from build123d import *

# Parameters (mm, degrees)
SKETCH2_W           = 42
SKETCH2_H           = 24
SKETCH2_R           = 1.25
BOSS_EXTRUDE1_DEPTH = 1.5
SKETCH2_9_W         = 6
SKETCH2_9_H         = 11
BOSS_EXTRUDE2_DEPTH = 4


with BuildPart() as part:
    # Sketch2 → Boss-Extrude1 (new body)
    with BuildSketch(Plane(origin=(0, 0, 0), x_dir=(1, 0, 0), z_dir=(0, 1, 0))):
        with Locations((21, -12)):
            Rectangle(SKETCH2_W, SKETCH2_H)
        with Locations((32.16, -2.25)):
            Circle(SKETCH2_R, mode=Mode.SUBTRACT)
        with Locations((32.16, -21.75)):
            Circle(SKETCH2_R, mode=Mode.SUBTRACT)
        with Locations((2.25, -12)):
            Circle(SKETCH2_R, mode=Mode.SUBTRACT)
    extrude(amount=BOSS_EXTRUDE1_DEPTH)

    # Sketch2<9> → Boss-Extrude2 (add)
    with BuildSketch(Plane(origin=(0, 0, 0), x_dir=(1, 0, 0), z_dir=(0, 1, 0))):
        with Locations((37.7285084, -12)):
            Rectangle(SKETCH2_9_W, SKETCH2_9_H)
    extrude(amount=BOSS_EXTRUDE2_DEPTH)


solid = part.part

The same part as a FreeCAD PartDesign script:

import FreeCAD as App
import Part
import Sketcher

doc = App.newDocument("Part")
body = doc.addObject("PartDesign::Body", "Body")

# Sketch on XZ plane
sketch1 = body.newObject("Sketcher::SketchObject", "Sketch")
sketch1.AttachmentSupport = (doc.getObject("XZ_Plane"), [""])
sketch1.MapMode = "FlatFace"
sketch1.addGeometry([
    Part.LineSegment(App.Vector(0, 0, 0), App.Vector(0, 24, 0)),  # 0
    Part.LineSegment(App.Vector(0, 24, 0), App.Vector(42, 24, 0)),  # 1
    Part.LineSegment(App.Vector(42, 24, 0), App.Vector(42, 0, 0)),  # 2
    Part.LineSegment(App.Vector(42, 0, 0), App.Vector(0, 0, 0)),  # 3
    Part.Circle(App.Vector(32.2, 21.8, 0), App.Vector(0, 0, 1), 1.2),  # 4
    Part.Circle(App.Vector(2.2, 12, 0), App.Vector(0, 0, 1), 1.2),  # 5
    Part.Circle(App.Vector(32.2, 2.2, 0), App.Vector(0, 0, 1), 1.2),  # 6
], False)
sketch1.addConstraint([
    Sketcher.Constraint("Coincident", 0, 2, 1, 1),
    Sketcher.Constraint("Coincident", 1, 2, 2, 1),
    Sketcher.Constraint("Coincident", 2, 2, 3, 1),
    Sketcher.Constraint("Coincident", 3, 2, 0, 1),
    Sketcher.Constraint("Vertical", 0),
    Sketcher.Constraint("Horizontal", 1),
    Sketcher.Constraint("Vertical", 2),
    Sketcher.Constraint("Horizontal", 3),
    Sketcher.Constraint("Coincident", 3, 2, -1, 1),
    Sketcher.Constraint("Equal", 4, 5),
    Sketcher.Constraint("Equal", 5, 6),
    Sketcher.Constraint("Vertical", 4, 3, 6, 3),
    Sketcher.Constraint("Diameter", 4, 2.5),
    Sketcher.Constraint("DistanceX", 1, 1, 1, 2, 42.0),
    Sketcher.Constraint("DistanceY", 0, 1, 0, 2, 24.0),
    Sketcher.Constraint("DistanceY", -1, 1, 5, 3, 12.0),
    Sketcher.Constraint("DistanceY", 6, 3, 4, 3, 19.5),
    Sketcher.Constraint("DistanceX", -1, 1, 4, 3, 32.16),
    Sketcher.Constraint("DistanceY", -1, 1, 4, 3, 21.75),
    Sketcher.Constraint("DistanceX", -1, 1, 5, 3, 2.25),
])
pad1 = body.newObject("PartDesign::Pad", "Pad")
pad1.Profile = sketch1
pad1.Length = 1.5
pad1.Reversed = True

# Sketch on XZ plane
sketch2 = body.newObject("Sketcher::SketchObject", "Sketch001")
sketch2.AttachmentSupport = (doc.getObject("XZ_Plane"), [""])
sketch2.MapMode = "FlatFace"
sketch2.addGeometry([
    Part.LineSegment(App.Vector(35, 6, 0), App.Vector(35, 18, 0)),
    Part.LineSegment(App.Vector(35, 18, 0), App.Vector(41, 18, 0)),
    Part.LineSegment(App.Vector(41, 18, 0), App.Vector(41, 6, 0)),
    Part.LineSegment(App.Vector(41, 6, 0), App.Vector(35, 6, 0)),
], False)
sketch2.addConstraint([
    Sketcher.Constraint("Coincident", 0, 2, 1, 1),
    Sketcher.Constraint("Coincident", 1, 2, 2, 1),
    Sketcher.Constraint("Coincident", 2, 2, 3, 1),
    Sketcher.Constraint("Coincident", 3, 2, 0, 1),
    Sketcher.Constraint("Vertical", 0),
    Sketcher.Constraint("Horizontal", 1),
    Sketcher.Constraint("Vertical", 2),
    Sketcher.Constraint("Horizontal", 3),
    Sketcher.Constraint("DistanceX", 1, 1, 1, 2, 6.0),
    Sketcher.Constraint("DistanceY", 0, 1, 0, 2, 11.0),
    Sketcher.Constraint("DistanceY", -1, 1, 0, 2, 17.5),
    Sketcher.Constraint("DistanceX", -1, 1, 0, 2, 34.728508),
])
pad2 = body.newObject("PartDesign::Pad", "Pad001")
pad2.Profile = sketch2
pad2.Length = 4
pad2.Reversed = True

doc.recompute()
